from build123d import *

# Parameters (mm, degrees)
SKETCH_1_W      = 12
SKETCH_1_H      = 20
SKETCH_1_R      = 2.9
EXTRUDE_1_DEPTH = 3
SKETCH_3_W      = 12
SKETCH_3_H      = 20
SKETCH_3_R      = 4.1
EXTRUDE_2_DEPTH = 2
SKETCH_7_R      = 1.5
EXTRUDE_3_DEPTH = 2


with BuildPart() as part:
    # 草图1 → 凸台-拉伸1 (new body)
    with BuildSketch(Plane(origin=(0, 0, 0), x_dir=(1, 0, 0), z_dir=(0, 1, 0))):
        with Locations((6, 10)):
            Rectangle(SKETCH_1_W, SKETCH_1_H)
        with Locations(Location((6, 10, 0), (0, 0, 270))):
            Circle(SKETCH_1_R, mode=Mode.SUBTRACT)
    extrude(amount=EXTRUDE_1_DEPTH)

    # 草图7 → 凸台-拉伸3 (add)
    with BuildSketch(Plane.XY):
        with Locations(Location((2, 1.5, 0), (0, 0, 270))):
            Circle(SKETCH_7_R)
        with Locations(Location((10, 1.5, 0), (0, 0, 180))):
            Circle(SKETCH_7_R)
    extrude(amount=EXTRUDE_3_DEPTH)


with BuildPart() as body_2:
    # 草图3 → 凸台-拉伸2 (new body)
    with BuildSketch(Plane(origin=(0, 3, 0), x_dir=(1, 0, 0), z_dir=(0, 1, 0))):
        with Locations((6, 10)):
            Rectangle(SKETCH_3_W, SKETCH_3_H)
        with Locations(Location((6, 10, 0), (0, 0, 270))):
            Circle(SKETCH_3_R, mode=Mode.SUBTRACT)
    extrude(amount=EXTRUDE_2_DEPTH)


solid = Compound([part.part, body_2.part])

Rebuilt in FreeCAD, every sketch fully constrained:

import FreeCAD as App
import Part
import Sketcher
from FreeCAD import Vector
Q = App.Units.Quantity


def add_polygon(sketch, points):
    """Adds a closed chain of lines whose ends are joined by coincident constraints."""
    first, n = sketch.GeometryCount, len(points)
    for a, b in zip(points, points[1:] + points[:1]):
        sketch.addGeometry(Part.LineSegment(App.Vector(*a, 0), App.Vector(*b, 0)), False)
    for i in range(n):
        sketch.addConstraint(Sketcher.Constraint("Coincident", first + i, 2, first + (i + 1) % n, 1))

doc = App.newDocument("Part")
body = doc.addObject("PartDesign::Body", "Body")

sketch1 = body.newObject("Sketcher::SketchObject", "Sketch")
sketch1.AttachmentSupport = (doc.getObject("XZ_Plane"), [""])
sketch1.MapMode = "FlatFace"
add_polygon(sketch1, [(0, -20), (0, 0), (12, 0), (12, -20)])
sketch1.addGeometry(Part.Circle(Vector(6, -10, 0), Vector(0, 0, 1), 2.9), False)
sketch1.addConstraint(Sketcher.Constraint("Vertical", 0))
sketch1.addConstraint(Sketcher.Constraint("Horizontal", 1))
sketch1.addConstraint(Sketcher.Constraint("Vertical", 2))
sketch1.addConstraint(Sketcher.Constraint("Horizontal", 3))
sketch1.addConstraint(Sketcher.Constraint("Coincident", 0, 2, -1, 1))
sketch1.addConstraint(Sketcher.Constraint("Diameter", 4, Q("5.8 mm")))
sketch1.addConstraint(Sketcher.Constraint("DistanceX", 1, 1, 1, 2, Q("12 mm")))
sketch1.addConstraint(Sketcher.Constraint("DistanceY", 0, 1, 0, 2, Q("20 mm")))
sketch1.addConstraint(Sketcher.Constraint("DistanceX", -1, 1, 4, 3, Q("6 mm")))
sketch1.addConstraint(Sketcher.Constraint("DistanceY", 4, 3, -1, 1, Q("10 mm")))
pad1 = body.newObject("PartDesign::Pad", "Pad")
pad1.Profile = sketch1
pad1.Length = 3
pad1.Reversed = True

sketch2 = body.newObject("Sketcher::SketchObject", "Sketch001")
sketch2.AttachmentSupport = (doc.getObject("XY_Plane"), [""])
sketch2.MapMode = "FlatFace"
sketch2.addGeometry(Part.Circle(Vector(2, 1.5, 0), Vector(0, 0, 1), 1.5), False)
sketch2.addGeometry(Part.Circle(Vector(10, 1.5, 0), Vector(0, 0, 1), 1.5), False)
sketch2.addConstraint(Sketcher.Constraint("Equal", 0, 1))
sketch2.addConstraint(Sketcher.Constraint("Horizontal", 0, 3, 1, 3))
sketch2.addConstraint(Sketcher.Constraint("Diameter", 0, Q("3 mm")))
sketch2.addConstraint(Sketcher.Constraint("DistanceX", -1, 1, 0, 3, Q("2 mm")))
sketch2.addConstraint(Sketcher.Constraint("DistanceX", -1, 1, 1, 3, Q("10 mm")))
sketch2.addConstraint(Sketcher.Constraint("DistanceY", -1, 1, 0, 3, Q("1.5 mm")))
pad2 = body.newObject("PartDesign::Pad", "Pad001")
pad2.Profile = sketch2
pad2.Length = 2
body2 = doc.addObject("PartDesign::Body", "Body001")

sketch3 = body2.newObject("Sketcher::SketchObject", "Sketch002")
sketch3.AttachmentSupport = (doc.getObject("XZ_Plane001"), [""])
sketch3.MapMode = "FlatFace"
sketch3.AttachmentOffset = App.Placement(Vector(0, 0, -3), App.Rotation())
add_polygon(sketch3, [(0, -20), (0, 0), (12, 0), (12, -20)])
sketch3.addGeometry(Part.Circle(Vector(6, -10, 0), Vector(0, 0, 1), 4.1), False)
sketch3.addConstraint(Sketcher.Constraint("Vertical", 0))
sketch3.addConstraint(Sketcher.Constraint("Horizontal", 1))
sketch3.addConstraint(Sketcher.Constraint("Vertical", 2))
sketch3.addConstraint(Sketcher.Constraint("Horizontal", 3))
sketch3.addConstraint(Sketcher.Constraint("Coincident", 0, 2, -1, 1))
sketch3.addConstraint(Sketcher.Constraint("Diameter", 4, Q("8.2 mm")))
sketch3.addConstraint(Sketcher.Constraint("DistanceX", 1, 1, 1, 2, Q("12 mm")))
sketch3.addConstraint(Sketcher.Constraint("DistanceY", 0, 1, 0, 2, Q("20 mm")))
sketch3.addConstraint(Sketcher.Constraint("DistanceX", -1, 1, 4, 3, Q("6 mm")))
sketch3.addConstraint(Sketcher.Constraint("DistanceY", 4, 3, -1, 1, Q("10 mm")))
pad3 = body2.newObject("PartDesign::Pad", "Pad002")
pad3.Profile = sketch3
pad3.Length = 2
pad3.Reversed = True

doc.recompute()
